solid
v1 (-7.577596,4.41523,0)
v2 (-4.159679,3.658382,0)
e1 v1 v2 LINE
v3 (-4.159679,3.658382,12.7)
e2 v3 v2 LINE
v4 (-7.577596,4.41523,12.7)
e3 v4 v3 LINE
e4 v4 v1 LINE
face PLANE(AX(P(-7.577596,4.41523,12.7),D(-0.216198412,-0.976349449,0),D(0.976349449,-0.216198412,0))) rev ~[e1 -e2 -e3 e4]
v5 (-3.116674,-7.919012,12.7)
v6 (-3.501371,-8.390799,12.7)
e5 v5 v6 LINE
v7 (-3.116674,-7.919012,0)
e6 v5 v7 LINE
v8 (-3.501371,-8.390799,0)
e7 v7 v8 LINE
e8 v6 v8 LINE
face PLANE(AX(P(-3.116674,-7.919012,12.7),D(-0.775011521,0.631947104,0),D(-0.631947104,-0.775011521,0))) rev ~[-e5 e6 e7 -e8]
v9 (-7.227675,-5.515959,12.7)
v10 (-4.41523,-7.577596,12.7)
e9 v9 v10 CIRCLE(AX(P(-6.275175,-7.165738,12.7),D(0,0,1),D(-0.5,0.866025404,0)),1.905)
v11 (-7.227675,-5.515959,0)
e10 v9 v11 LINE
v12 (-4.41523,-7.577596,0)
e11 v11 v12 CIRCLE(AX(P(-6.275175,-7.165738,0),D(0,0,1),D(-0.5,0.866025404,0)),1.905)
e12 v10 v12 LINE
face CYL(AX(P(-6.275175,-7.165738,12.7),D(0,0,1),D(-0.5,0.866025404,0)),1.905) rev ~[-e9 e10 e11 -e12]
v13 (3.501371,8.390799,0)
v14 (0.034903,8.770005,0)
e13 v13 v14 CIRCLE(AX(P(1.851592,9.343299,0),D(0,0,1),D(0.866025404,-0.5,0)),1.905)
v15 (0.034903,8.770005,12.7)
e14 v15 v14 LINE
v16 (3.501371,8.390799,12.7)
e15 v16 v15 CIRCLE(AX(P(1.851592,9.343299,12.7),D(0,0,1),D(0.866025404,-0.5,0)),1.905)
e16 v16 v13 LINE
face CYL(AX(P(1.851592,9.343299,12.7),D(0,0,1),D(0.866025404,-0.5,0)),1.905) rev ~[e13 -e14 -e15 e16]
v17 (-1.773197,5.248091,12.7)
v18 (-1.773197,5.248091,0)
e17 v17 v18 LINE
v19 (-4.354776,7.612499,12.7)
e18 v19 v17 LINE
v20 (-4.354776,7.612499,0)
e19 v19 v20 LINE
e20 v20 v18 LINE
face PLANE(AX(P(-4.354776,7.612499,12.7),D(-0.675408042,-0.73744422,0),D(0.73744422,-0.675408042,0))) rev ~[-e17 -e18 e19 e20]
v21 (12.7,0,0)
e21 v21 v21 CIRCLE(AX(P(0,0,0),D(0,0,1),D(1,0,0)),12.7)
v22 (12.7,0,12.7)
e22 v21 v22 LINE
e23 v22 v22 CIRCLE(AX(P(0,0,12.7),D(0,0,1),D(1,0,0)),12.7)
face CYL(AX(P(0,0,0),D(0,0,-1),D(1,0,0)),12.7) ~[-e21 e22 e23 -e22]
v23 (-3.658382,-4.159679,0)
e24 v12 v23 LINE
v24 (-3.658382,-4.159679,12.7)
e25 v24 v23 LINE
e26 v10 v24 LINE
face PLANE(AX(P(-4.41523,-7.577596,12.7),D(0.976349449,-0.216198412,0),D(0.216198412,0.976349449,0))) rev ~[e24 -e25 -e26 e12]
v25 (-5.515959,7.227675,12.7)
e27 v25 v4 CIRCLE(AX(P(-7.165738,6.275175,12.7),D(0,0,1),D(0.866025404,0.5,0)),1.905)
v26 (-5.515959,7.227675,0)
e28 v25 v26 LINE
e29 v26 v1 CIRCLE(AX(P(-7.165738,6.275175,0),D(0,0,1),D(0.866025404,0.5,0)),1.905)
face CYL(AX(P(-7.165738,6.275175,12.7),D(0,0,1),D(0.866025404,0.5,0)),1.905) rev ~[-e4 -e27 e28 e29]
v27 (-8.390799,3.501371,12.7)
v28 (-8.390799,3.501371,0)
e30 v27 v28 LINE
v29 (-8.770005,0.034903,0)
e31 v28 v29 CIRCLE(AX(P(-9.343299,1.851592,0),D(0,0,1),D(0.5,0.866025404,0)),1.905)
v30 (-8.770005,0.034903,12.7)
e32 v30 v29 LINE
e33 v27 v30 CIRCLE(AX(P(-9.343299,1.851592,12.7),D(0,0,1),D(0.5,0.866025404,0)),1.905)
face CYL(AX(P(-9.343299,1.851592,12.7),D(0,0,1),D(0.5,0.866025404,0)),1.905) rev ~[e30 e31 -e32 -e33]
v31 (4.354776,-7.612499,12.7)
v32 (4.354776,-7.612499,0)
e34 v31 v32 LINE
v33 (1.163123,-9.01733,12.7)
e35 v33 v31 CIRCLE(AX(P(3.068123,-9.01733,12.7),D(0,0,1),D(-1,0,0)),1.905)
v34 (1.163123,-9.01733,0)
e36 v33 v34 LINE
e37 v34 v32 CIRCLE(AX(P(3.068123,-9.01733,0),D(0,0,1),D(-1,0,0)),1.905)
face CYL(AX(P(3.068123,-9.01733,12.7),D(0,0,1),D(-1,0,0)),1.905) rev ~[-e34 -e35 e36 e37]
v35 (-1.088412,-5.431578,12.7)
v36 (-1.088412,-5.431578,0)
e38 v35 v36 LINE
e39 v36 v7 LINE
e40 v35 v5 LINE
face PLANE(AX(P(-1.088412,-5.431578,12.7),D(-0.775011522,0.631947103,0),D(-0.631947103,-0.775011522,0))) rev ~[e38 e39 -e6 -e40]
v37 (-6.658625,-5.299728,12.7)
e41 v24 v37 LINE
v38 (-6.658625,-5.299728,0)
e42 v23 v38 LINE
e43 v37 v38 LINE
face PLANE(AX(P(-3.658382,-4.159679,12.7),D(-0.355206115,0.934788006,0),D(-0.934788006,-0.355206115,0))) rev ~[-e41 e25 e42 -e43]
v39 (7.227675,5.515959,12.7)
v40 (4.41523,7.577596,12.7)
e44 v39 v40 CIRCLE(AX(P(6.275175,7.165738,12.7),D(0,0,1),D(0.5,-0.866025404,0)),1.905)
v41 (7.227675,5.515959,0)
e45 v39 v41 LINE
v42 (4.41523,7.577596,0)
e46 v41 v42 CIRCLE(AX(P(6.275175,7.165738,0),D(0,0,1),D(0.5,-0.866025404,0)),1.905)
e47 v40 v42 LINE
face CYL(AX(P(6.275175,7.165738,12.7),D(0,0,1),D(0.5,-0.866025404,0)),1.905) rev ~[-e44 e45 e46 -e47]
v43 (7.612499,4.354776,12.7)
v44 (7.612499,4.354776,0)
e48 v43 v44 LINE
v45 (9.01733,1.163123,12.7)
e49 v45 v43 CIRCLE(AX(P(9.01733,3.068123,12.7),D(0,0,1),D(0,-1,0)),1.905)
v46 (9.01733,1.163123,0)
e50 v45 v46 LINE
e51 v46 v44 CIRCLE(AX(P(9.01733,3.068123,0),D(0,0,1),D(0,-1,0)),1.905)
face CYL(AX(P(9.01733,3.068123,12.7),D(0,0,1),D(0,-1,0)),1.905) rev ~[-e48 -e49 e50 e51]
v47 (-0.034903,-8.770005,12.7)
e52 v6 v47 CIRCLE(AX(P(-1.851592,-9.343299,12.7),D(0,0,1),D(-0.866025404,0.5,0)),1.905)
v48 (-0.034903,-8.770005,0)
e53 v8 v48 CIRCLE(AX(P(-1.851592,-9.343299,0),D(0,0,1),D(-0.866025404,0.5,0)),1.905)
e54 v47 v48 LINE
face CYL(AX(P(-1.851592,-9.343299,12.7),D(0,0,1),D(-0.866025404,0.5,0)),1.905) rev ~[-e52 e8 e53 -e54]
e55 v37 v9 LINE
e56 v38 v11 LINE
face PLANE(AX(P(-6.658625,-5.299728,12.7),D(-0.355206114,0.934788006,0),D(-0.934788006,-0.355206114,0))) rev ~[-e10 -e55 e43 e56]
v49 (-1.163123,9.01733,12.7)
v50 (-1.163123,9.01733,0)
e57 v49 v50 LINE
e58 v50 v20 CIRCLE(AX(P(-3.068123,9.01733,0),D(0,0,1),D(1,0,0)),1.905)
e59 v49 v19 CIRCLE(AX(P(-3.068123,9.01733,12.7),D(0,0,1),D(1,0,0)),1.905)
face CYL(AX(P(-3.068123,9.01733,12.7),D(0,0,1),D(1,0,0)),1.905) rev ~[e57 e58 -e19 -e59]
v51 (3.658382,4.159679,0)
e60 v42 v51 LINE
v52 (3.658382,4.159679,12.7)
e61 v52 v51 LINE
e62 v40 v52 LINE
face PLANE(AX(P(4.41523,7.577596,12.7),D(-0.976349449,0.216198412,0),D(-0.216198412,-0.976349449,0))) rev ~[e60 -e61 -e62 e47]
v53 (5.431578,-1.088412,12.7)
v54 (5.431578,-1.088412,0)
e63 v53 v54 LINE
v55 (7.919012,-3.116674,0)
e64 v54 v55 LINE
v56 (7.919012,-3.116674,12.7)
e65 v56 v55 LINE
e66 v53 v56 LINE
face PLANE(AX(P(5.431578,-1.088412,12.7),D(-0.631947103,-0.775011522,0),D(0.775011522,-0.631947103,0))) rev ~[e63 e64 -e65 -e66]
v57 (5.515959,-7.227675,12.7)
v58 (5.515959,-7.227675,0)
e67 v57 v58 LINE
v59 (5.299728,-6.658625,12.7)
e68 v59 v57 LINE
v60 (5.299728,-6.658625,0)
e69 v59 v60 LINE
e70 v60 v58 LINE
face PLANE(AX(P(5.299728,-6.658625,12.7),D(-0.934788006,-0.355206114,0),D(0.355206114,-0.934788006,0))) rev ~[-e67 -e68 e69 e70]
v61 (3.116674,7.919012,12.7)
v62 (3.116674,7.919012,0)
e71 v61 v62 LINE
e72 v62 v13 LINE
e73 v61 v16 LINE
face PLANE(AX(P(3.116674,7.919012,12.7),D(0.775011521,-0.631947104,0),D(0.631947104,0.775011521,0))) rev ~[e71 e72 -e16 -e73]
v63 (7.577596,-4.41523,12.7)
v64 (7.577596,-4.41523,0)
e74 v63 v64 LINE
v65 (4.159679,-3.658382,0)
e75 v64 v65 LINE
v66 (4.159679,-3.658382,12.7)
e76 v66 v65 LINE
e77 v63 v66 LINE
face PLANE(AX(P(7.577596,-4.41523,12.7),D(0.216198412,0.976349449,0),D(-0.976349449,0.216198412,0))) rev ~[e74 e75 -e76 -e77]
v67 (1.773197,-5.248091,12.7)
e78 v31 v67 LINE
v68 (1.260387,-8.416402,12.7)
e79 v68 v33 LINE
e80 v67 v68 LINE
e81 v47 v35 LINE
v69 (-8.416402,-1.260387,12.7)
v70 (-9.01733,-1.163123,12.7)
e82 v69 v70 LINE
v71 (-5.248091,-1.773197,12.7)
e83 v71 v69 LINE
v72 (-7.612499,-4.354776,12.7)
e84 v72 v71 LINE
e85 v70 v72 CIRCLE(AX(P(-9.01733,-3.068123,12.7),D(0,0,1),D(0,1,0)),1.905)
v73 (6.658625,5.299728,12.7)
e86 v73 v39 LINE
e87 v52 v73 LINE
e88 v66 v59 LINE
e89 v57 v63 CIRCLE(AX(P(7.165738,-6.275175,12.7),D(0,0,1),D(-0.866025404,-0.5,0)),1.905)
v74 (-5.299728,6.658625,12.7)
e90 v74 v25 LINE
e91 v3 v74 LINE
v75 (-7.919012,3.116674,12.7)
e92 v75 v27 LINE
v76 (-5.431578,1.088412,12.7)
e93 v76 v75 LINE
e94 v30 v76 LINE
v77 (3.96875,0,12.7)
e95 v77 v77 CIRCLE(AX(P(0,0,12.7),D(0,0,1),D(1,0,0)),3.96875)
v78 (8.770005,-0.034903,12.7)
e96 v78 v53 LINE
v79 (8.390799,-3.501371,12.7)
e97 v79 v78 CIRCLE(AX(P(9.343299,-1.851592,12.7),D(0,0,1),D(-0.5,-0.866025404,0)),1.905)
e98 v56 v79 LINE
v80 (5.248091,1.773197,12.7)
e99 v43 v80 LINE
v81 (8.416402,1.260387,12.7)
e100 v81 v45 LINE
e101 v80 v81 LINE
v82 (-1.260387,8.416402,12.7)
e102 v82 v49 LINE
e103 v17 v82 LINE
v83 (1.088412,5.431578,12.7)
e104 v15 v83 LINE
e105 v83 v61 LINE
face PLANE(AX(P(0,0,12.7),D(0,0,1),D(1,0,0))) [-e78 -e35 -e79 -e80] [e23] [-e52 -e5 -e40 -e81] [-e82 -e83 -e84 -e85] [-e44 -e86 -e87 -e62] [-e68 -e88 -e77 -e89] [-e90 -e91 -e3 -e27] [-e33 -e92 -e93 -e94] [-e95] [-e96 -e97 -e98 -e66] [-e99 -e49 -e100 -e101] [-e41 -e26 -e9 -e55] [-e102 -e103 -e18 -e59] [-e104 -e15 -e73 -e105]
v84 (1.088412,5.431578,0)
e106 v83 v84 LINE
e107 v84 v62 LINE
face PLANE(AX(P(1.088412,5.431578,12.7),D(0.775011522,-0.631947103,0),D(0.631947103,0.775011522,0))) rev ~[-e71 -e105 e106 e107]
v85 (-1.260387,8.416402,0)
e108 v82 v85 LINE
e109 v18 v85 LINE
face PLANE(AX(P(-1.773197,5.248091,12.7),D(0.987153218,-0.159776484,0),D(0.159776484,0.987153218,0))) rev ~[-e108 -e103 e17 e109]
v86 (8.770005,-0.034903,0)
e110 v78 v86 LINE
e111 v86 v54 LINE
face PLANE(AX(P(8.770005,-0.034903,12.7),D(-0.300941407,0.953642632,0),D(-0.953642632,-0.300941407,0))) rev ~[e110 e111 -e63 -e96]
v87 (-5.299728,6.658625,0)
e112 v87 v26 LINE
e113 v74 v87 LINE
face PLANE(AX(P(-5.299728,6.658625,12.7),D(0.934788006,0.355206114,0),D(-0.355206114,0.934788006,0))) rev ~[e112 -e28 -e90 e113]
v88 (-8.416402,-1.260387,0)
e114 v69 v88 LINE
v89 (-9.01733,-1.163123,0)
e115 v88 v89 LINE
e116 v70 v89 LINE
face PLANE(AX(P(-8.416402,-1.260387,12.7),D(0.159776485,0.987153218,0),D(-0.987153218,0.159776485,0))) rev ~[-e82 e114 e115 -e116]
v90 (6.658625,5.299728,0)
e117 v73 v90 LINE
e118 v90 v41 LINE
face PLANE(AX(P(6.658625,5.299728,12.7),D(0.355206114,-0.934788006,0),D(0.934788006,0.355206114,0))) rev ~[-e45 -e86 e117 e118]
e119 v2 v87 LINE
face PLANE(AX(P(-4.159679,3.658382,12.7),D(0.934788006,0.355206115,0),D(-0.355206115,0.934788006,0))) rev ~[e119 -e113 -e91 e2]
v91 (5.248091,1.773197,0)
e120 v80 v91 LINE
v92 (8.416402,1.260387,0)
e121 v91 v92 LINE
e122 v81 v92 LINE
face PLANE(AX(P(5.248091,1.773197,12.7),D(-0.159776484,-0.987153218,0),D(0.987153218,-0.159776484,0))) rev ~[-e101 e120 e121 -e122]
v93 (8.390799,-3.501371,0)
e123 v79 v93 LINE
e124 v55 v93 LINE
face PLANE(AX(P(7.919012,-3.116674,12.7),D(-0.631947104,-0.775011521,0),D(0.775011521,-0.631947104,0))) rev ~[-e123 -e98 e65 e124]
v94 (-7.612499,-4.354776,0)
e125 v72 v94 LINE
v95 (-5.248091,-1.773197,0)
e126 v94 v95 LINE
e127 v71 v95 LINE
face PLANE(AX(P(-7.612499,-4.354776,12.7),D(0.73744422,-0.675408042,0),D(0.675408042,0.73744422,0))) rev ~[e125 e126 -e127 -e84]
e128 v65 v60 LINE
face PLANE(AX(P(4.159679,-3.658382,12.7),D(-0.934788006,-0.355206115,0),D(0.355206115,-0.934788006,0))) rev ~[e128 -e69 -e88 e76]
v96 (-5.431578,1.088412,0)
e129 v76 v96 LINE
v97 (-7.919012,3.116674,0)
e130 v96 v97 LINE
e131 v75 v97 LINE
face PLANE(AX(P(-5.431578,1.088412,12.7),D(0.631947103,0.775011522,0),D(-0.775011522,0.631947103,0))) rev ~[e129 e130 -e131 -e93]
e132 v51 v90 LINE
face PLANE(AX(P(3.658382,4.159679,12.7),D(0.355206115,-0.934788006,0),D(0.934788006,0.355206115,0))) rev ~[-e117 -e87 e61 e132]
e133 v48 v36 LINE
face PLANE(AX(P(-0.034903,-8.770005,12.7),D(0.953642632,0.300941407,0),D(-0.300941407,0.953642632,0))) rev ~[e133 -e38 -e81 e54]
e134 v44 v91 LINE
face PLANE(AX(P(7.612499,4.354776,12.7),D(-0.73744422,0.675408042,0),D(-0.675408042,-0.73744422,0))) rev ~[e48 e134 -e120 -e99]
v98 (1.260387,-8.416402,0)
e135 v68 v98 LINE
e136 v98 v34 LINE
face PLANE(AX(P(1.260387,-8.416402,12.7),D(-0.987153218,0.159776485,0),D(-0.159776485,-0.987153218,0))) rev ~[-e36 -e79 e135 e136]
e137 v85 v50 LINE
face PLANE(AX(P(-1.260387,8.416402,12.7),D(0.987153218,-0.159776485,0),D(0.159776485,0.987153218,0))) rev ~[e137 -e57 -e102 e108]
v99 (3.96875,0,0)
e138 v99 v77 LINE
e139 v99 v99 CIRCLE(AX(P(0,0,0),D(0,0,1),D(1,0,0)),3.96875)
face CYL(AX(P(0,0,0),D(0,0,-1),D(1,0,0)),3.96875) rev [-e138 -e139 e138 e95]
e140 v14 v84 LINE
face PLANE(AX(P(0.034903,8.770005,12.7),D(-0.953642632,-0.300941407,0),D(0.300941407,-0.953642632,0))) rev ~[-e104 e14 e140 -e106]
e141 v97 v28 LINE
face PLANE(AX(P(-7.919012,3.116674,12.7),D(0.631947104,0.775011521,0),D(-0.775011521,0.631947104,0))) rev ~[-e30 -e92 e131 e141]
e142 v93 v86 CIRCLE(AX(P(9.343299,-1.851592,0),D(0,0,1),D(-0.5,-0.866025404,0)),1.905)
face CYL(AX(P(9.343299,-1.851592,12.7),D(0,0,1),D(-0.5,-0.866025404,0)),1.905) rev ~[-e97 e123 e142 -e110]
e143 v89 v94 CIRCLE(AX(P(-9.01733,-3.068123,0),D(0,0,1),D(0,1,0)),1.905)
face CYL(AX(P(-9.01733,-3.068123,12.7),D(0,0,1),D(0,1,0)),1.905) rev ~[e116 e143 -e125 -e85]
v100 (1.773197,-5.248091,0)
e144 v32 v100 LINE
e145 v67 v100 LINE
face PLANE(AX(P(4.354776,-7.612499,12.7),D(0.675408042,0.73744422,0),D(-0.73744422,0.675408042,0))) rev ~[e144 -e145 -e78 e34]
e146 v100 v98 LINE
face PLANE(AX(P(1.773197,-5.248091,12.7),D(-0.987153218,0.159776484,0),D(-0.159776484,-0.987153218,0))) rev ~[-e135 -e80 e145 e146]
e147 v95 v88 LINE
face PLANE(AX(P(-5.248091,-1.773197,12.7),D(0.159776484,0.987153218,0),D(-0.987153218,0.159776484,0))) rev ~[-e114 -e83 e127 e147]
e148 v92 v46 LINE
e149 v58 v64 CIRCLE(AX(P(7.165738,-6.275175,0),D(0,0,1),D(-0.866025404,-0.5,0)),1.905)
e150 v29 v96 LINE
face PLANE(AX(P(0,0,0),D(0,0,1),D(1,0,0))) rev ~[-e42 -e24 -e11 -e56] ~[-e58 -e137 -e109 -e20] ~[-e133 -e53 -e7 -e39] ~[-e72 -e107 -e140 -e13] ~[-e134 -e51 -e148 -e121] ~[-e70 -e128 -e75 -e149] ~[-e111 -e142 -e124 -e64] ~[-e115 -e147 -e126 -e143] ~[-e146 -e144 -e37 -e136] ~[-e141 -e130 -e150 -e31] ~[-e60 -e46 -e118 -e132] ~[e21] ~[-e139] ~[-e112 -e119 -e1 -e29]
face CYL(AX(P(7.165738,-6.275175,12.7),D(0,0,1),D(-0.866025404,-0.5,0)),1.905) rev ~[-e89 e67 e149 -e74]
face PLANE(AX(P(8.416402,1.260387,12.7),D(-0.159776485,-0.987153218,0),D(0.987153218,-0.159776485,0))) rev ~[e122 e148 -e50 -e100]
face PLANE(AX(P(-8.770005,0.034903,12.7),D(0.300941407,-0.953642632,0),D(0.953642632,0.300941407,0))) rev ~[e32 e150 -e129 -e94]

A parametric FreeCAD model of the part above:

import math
import FreeCAD as App
import Part
import Sketcher

V = App.Vector
Q = App.Units.Quantity

doc = App.newDocument("Part")
body = doc.addObject("PartDesign::Body", "Body")

sketch1 = doc.addObject("Sketcher::SketchObject", "Sketch")
body.addObject(sketch1)
sketch1.AttachmentSupport = (doc.XY_Plane, [""])
sketch1.MapMode = "FlatFace"
sketch1.addGeometry([
    Part.Circle(V(0, 0, 0), V(0, 0, 1), 12.7),
    Part.Circle(V(0, 0, 0), V(0, 0, 1), 3.96875),
], False)
sketch1.addConstraint([
    Sketcher.Constraint("Coincident", 0, 3, -1, 1),
    Sketcher.Constraint("Coincident", 1, 3, -1, 1),
    Sketcher.Constraint("Diameter", 0, Q("1 in")),
    Sketcher.Constraint("Diameter", 1, Q("0.3125 in")),
])
pad1 = doc.addObject("PartDesign::Pad", "Pad")
body.addObject(pad1)
pad1.Profile = sketch1
pad1.Length = Q("0.5 in")

sketch2 = doc.addObject("Sketcher::SketchObject", "Sketch001")
body.addObject(sketch2)
sketch2.AttachmentSupport = (doc.XY_Plane, [""])
sketch2.MapMode = "FlatFace"
sketch2.AttachmentOffset = App.Placement(V(0, 0, 0.5 * 25.4), App.Rotation())
sketch2.addGeometry([
    Part.LineSegment(V(-4.354776, 7.612499, 0), V(-1.773197, 5.248091, 0)),
    Part.LineSegment(V(-1.773197, 5.248091, 0), V(-1.260387, 8.416402, 0)),
    Part.LineSegment(V(-1.260387, 8.416402, 0), V(-1.163123, 9.01733, 0)),
    Part.ArcOfCircle(Part.Circle(V(-3.068123, 9.01733, 0), V(0, 0, 1), 1.905), math.radians(0), math.radians(227.514155)),
], False)
sketch2.addConstraint([
    Sketcher.Constraint("Coincident", 0, 2, 1, 1),
    Sketcher.Constraint("Coincident", 1, 2, 2, 1),
    Sketcher.Constraint("Coincident", 2, 2, 3, 1),
    Sketcher.Constraint("Tangent", 3, 2, 0, 1),
    Sketcher.Constraint("Parallel", 1, 2),
    Sketcher.Constraint("Horizontal", 3, 3, 2, 2),
    Sketcher.Constraint("Radius", 3, Q("0.075 in")),
    Sketcher.Constraint("DistanceY", -1, 1, 3, 2, Q("7.612499 mm")),
    Sketcher.Constraint("Distance", 0, Q("3.500711 mm")),
    Sketcher.Constraint("Distance", 2, Q("0.608748 mm")),
    Sketcher.Constraint("DistanceY", -1, 1, 3, 3, Q("9.01733 mm")),
    Sketcher.Constraint("DistanceX", 3, 3, -1, 1, Q("3.068123 mm")),
])
pocket1 = doc.addObject("PartDesign::Pocket", "Pocket")
body.addObject(pocket1)
pocket1.Profile = sketch2
pocket1.Type = "ThroughAll"
doc.recompute()

polarpattern = doc.addObject("PartDesign::PolarPattern", "PolarPattern")
body.addObject(polarpattern)
polarpattern.Originals = [pocket1]
polarpattern.Axis = (doc.Z_Axis, [""])
polarpattern.Angle = 360
polarpattern.Occurrences = 12
body.Tip = polarpattern

doc.recompute()
